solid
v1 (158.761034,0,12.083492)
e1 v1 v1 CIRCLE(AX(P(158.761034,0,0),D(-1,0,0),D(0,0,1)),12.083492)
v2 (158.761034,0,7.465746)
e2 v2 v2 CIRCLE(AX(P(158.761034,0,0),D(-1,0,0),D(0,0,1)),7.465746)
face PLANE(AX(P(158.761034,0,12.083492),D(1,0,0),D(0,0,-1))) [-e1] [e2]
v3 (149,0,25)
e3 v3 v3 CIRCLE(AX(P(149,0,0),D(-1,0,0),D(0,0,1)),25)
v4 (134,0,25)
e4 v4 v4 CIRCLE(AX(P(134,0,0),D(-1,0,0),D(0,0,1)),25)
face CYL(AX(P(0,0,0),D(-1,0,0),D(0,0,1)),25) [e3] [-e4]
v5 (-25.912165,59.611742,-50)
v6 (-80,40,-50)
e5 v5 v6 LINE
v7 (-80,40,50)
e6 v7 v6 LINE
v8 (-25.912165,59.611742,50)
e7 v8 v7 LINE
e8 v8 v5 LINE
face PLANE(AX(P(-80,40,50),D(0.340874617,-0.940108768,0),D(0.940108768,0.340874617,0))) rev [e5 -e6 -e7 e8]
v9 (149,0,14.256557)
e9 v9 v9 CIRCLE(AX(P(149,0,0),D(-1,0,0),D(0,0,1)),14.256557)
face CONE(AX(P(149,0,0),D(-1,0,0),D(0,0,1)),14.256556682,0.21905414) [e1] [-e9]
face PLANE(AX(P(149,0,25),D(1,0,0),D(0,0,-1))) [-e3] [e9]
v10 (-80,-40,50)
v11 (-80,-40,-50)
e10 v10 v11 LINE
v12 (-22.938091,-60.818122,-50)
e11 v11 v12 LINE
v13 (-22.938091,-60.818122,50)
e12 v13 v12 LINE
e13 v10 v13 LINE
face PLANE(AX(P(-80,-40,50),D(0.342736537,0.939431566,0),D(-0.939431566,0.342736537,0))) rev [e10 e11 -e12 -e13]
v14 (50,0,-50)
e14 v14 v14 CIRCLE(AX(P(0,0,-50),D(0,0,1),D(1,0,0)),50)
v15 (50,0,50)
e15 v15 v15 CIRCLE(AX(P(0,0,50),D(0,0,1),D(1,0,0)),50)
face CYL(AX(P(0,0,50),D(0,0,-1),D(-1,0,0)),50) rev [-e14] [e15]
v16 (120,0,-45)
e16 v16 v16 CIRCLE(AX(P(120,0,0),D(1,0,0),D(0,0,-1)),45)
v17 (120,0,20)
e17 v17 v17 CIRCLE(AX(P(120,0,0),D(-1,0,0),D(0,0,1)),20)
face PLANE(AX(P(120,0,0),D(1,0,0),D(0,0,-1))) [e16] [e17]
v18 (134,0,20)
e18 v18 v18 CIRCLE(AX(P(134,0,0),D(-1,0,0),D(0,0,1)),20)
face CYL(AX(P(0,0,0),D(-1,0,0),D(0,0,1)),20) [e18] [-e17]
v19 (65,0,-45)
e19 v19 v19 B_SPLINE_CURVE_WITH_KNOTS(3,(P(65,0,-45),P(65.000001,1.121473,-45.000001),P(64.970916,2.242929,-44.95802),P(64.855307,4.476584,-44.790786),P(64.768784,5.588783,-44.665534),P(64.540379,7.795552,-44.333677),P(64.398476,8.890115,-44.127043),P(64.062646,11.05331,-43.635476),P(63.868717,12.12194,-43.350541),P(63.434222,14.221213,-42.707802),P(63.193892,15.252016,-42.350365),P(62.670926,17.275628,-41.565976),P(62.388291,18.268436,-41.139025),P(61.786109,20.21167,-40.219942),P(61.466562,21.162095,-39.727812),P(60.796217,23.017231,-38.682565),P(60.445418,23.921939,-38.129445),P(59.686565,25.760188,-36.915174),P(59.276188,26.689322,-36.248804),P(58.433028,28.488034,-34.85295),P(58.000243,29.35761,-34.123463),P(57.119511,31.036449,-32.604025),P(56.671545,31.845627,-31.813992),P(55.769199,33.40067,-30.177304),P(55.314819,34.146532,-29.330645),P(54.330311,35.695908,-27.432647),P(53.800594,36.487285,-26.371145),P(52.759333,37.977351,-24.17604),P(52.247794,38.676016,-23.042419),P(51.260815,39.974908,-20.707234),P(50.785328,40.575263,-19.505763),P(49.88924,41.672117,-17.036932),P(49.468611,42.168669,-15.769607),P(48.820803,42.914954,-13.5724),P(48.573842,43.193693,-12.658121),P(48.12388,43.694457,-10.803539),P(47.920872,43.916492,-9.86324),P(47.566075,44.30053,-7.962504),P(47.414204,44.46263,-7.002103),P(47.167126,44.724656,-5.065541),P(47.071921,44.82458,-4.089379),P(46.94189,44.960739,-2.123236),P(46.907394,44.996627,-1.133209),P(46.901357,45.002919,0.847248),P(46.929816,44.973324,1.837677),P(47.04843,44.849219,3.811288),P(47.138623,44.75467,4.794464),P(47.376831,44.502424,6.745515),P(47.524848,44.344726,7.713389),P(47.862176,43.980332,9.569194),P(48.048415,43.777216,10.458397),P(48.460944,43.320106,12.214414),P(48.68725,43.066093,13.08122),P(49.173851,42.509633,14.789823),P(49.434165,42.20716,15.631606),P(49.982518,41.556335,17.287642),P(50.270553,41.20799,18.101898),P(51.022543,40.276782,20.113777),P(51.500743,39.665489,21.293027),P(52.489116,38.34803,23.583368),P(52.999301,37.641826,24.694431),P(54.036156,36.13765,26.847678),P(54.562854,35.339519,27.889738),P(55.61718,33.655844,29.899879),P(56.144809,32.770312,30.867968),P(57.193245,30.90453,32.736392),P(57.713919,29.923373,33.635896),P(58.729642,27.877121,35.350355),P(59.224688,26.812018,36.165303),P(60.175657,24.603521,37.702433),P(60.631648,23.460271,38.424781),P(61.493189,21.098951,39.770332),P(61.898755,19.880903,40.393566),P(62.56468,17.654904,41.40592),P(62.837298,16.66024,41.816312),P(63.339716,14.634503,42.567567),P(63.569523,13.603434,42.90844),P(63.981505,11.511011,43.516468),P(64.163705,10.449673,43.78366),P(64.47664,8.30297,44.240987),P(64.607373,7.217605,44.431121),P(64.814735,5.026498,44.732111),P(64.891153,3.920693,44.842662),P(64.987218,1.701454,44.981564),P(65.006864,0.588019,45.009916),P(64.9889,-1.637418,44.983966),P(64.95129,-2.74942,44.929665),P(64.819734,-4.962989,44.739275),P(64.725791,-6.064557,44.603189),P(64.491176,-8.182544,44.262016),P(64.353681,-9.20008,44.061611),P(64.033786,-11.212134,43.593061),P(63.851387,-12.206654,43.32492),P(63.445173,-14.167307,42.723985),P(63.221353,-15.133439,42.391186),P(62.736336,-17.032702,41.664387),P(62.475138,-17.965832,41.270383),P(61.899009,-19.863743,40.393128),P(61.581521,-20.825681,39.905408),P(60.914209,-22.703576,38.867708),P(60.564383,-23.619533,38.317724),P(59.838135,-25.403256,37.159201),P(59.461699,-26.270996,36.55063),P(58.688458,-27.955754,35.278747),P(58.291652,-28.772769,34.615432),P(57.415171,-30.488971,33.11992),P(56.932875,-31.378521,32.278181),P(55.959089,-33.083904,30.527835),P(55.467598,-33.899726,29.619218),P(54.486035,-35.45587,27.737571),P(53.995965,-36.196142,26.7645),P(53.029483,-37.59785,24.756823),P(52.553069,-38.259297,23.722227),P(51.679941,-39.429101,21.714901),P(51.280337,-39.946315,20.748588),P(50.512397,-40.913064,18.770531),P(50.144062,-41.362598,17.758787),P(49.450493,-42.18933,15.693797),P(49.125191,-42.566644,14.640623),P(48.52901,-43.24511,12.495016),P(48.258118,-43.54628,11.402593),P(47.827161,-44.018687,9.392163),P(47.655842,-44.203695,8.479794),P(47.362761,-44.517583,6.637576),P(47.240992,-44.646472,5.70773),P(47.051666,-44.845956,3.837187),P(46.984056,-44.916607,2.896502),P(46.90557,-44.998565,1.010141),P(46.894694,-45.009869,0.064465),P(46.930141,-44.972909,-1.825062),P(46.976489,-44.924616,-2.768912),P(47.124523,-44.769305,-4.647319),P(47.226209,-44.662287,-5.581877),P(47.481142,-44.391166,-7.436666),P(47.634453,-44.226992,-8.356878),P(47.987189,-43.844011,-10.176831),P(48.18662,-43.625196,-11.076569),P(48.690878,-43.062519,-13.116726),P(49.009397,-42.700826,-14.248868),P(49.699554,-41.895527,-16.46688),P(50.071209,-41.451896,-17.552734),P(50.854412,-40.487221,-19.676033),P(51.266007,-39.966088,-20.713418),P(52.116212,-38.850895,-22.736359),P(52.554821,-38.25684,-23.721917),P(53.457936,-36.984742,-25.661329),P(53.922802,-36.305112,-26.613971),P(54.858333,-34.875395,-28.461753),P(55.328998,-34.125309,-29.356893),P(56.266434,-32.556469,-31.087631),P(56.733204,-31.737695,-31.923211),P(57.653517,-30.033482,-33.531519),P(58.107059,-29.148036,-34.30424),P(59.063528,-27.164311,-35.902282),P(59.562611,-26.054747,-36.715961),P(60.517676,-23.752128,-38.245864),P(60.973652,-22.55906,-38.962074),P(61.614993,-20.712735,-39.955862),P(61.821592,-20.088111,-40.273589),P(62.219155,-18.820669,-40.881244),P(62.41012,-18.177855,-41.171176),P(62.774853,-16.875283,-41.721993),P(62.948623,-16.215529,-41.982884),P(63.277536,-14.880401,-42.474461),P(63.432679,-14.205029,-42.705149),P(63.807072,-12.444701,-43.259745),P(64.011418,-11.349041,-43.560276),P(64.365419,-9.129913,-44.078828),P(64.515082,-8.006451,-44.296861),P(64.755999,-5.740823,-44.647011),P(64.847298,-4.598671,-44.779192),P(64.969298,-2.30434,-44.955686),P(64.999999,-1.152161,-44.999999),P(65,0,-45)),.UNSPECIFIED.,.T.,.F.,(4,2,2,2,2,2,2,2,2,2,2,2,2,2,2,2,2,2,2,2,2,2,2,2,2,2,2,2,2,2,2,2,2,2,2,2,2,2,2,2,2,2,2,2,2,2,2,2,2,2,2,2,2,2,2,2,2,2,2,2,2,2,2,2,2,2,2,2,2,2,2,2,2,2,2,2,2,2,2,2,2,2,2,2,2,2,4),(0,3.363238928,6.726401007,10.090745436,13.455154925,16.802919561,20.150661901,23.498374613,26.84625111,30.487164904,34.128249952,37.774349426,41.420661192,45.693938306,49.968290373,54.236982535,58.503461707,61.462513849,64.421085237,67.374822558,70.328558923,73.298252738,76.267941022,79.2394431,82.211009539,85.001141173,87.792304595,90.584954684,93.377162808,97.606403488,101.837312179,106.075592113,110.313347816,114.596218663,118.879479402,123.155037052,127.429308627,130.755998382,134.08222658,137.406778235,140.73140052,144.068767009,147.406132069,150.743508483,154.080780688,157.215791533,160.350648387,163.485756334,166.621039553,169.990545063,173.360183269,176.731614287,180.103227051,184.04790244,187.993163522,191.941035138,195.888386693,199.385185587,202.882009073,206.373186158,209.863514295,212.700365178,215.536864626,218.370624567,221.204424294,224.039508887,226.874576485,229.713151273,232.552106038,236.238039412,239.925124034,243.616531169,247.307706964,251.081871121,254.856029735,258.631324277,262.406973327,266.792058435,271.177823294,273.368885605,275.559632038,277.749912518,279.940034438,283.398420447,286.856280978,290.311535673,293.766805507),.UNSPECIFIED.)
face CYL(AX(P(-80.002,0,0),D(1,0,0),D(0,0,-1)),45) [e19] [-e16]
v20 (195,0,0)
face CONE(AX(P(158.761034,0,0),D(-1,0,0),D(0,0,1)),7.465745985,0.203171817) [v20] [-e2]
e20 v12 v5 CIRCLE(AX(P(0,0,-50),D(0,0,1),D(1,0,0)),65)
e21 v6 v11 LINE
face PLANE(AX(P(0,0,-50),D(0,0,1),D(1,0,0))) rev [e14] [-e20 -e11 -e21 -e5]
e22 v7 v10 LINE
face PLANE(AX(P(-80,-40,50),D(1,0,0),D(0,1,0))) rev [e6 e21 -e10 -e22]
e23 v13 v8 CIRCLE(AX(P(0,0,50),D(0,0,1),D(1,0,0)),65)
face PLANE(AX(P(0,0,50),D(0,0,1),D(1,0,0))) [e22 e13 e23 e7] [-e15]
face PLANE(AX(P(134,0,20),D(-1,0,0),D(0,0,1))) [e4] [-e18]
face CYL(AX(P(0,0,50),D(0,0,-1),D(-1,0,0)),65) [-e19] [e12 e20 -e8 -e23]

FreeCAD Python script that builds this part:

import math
import FreeCAD as App
import Part
import Sketcher
Q = App.Units.Quantity

doc = App.newDocument("Part")
params = doc.addObject("Spreadsheet::Sheet", "Params")
for row, (alias, value) in enumerate([
    ("sketch1_diameter", "100 mm"),
    ("sketch1_radius", "65 mm"),
    ("sketch1_height", "80 mm"),
    ("pad1_length", "100 mm"),
    ("sketch2_diameter", "90 mm"),
    ("sketch3_width", "75 mm"),
    ("sketch3_width2", "14 mm"),
    ("sketch3_width3", "15 mm"),
    ("sketch3_height", "20 mm"),
    ("sketch3_height2", "5 mm"),
    ("revolution_angle", "360 deg"),
], start=1):
    params.set(f"A{row}", alias)
    params.set(f"B{row}", "=" + value)
    params.setAlias(f"B{row}", alias)

body = doc.addObject("PartDesign::Body", "Body")

sketch1 = body.newObject("Sketcher::SketchObject", "Sketch")
sketch1.AttachmentSupport = (doc.getObject("XY_Plane"), [""])
sketch1.MapMode = "FlatFace"
sketch1.addGeometry(Part.LineSegment(App.Vector(-80, 40, 0), App.Vector(-80, -40, 0)), False)
sketch1.addGeometry(Part.LineSegment(App.Vector(-80, -40, 0), App.Vector(-23, -61, 0)), False)
sketch1.addGeometry(Part.ArcOfCircle(Part.Circle(App.Vector(0, 0, 0), App.Vector(0, 0, 1), 65), math.radians(-111), math.radians(113)), False)
sketch1.addGeometry(Part.LineSegment(App.Vector(-26, 60, 0), App.Vector(-80, 40, 0)), False)
sketch1.addGeometry(Part.Circle(App.Vector(0, 0, 0), App.Vector(0, 0, 1), 50), False)
sketch1.addConstraint(Sketcher.Constraint("Coincident", 0, 2, 1, 1))
sketch1.addConstraint(Sketcher.Constraint("Coincident", 1, 2, 2, 1))
sketch1.addConstraint(Sketcher.Constraint("Coincident", 2, 2, 3, 1))
sketch1.addConstraint(Sketcher.Constraint("Coincident", 3, 2, 0, 1))
sketch1.addConstraint(Sketcher.Constraint("Vertical", 0))
sketch1.addConstraint(Sketcher.Constraint("Coincident", 2, 3, -1, 1))
sketch1.addConstraint(Sketcher.Constraint("Coincident", 4, 3, -1, 1))
sketch1.addConstraint(Sketcher.Constraint("Diameter", 4, Q("100 mm")))
sketch1.addConstraint(Sketcher.Constraint("Radius", 2, Q("65 mm")))
sketch1.addConstraint(Sketcher.Constraint("DistanceY", 0, 2, 0, 1, Q("80 mm")))
sketch1.addConstraint(Sketcher.Constraint("DistanceX", 0, 2, -1, 1, Q("80 mm")))
sketch1.addConstraint(Sketcher.Constraint("DistanceY", 0, 2, -1, 1, Q("40 mm")))
sketch1.addConstraint(Sketcher.Constraint("Distance", 1, Q("60.740889 mm")))
sketch1.addConstraint(Sketcher.Constraint("DistanceY", -1, 1, 2, 2, Q("59.611742 mm")))
sketch1.setExpression("Constraints[7]", "Params.sketch1_diameter")
sketch1.setExpression("Constraints[8]", "Params.sketch1_radius")
sketch1.setExpression("Constraints[9]", "Params.sketch1_height")
pad1 = body.newObject("PartDesign::Pad", "Pad")
pad1.Profile = sketch1
pad1.setExpression("Length", "Params.pad1_length")
pad1.Midplane = True

sketch2 = body.newObject("Sketcher::SketchObject", "Sketch001")
sketch2.AttachmentSupport = (doc.getObject("YZ_Plane"), [""])
sketch2.MapMode = "FlatFace"
sketch2.AttachmentOffset = App.Placement(App.Vector(0, 0, 120), App.Rotation())
sketch2.addGeometry(Part.Circle(App.Vector(0, 0, 0), App.Vector(0, 0, 1), 45), False)
sketch2.addConstraint(Sketcher.Constraint("Coincident", 0, 3, -1, 1))
sketch2.addConstraint(Sketcher.Constraint("Diameter", 0, Q("90 mm")))
sketch2.setExpression("Constraints[1]", "Params.sketch2_diameter")
pad2 = body.newObject("PartDesign::Pad", "Pad001")
pad2.Profile = sketch2
pad2.Type = "UpToFirst"
pad2.Reversed = True

sketch3 = body.newObject("Sketcher::SketchObject", "Sketch002")
sketch3.AttachmentSupport = (doc.getObject("XZ_Plane"), [""])
sketch3.MapMode = "FlatFace"
sketch3.addGeometry(Part.LineSegment(App.Vector(195, 0, 0), App.Vector(120, 0, 0)), False)
sketch3.addGeometry(Part.LineSegment(App.Vector(120, 0, 0), App.Vector(120, 20, 0)), False)
sketch3.addGeometry(Part.LineSegment(App.Vector(120, 20, 0), App.Vector(134, 20, 0)), False)
sketch3.addGeometry(Part.LineSegment(App.Vector(134, 20, 0), App.Vector(134, 25, 0)), False)
sketch3.addGeometry(Part.LineSegment(App.Vector(134, 25, 0), App.Vector(149, 25, 0)), False)
sketch3.addGeometry(Part.LineSegment(App.Vector(149, 25, 0), App.Vector(149, 14.3, 0)), False)
sketch3.addGeometry(Part.LineSegment(App.Vector(149, 14.3, 0), App.Vector(158.8, 12.1, 0)), False)
sketch3.addGeometry(Part.LineSegment(App.Vector(158.8, 12.1, 0), App.Vector(158.8, 7.5, 0)), False)
sketch3.addGeometry(Part.LineSegment(App.Vector(158.8, 7.5, 0), App.Vector(195, 0, 0)), False)
sketch3.addConstraint(Sketcher.Constraint("Coincident", 0, 2, 1, 1))
sketch3.addConstraint(Sketcher.Constraint("Coincident", 1, 2, 2, 1))
sketch3.addConstraint(Sketcher.Constraint("Coincident", 2, 2, 3, 1))
sketch3.addConstraint(Sketcher.Constraint("Coincident", 3, 2, 4, 1))
sketch3.addConstraint(Sketcher.Constraint("Coincident", 4, 2, 5, 1))
sketch3.addConstraint(Sketcher.Constraint("Coincident", 5, 2, 6, 1))
sketch3.addConstraint(Sketcher.Constraint("Coincident", 6, 2, 7, 1))
sketch3.addConstraint(Sketcher.Constraint("Coincident", 7, 2, 8, 1))
sketch3.addConstraint(Sketcher.Constraint("Coincident", 8, 2, 0, 1))
sketch3.addConstraint(Sketcher.Constraint("Horizontal", 0))
sketch3.addConstraint(Sketcher.Constraint("Vertical", 1))
sketch3.addConstraint(Sketcher.Constraint("Horizontal", 2))
sketch3.addConstraint(Sketcher.Constraint("Vertical", 3))
sketch3.addConstraint(Sketcher.Constraint("Horizontal", 4))
sketch3.addConstraint(Sketcher.Constraint("Vertical", 5))
sketch3.addConstraint(Sketcher.Constraint("Vertical", 7))
sketch3.addConstraint(Sketcher.Constraint("PointOnObject", 0, 2, -1))
sketch3.addConstraint(Sketcher.Constraint("DistanceX", 0, 2, 0, 1, Q("75 mm")))
sketch3.addConstraint(Sketcher.Constraint("DistanceX", 2, 1, 2, 2, Q("14 mm")))
sketch3.addConstraint(Sketcher.Constraint("DistanceX", 4, 1, 4, 2, Q("15 mm")))
sketch3.addConstraint(Sketcher.Constraint("DistanceY", 1, 1, 1, 2, Q("20 mm")))
sketch3.addConstraint(Sketcher.Constraint("DistanceY", 3, 1, 3, 2, Q("5 mm")))
sketch3.addConstraint(Sketcher.Constraint("Distance", 6, Q("10 mm")))
sketch3.addConstraint(Sketcher.Constraint("Distance", 8, Q("37 mm")))
sketch3.addConstraint(Sketcher.Constraint("DistanceX", -1, 1, 0, 2, Q("120 mm")))
sketch3.addConstraint(Sketcher.Constraint("DistanceY", 5, 2, 5, 1, Q("10.743443 mm")))
sketch3.addConstraint(Sketcher.Constraint("DistanceY", 7, 2, 7, 1, Q("4.617746 mm")))
sketch3.setExpression("Constraints[17]", "Params.sketch3_width")
sketch3.setExpression("Constraints[18]", "Params.sketch3_width2")
sketch3.setExpression("Constraints[19]", "Params.sketch3_width3")
sketch3.setExpression("Constraints[20]", "Params.sketch3_height")
sketch3.setExpression("Constraints[21]", "Params.sketch3_height2")
revolution = body.newObject("PartDesign::Revolution", "Revolution")
revolution.Profile = sketch3
revolution.ReferenceAxis = (sketch3, ["H_Axis"])
revolution.setExpression("Angle", "Params.revolution_angle")

doc.recompute()
